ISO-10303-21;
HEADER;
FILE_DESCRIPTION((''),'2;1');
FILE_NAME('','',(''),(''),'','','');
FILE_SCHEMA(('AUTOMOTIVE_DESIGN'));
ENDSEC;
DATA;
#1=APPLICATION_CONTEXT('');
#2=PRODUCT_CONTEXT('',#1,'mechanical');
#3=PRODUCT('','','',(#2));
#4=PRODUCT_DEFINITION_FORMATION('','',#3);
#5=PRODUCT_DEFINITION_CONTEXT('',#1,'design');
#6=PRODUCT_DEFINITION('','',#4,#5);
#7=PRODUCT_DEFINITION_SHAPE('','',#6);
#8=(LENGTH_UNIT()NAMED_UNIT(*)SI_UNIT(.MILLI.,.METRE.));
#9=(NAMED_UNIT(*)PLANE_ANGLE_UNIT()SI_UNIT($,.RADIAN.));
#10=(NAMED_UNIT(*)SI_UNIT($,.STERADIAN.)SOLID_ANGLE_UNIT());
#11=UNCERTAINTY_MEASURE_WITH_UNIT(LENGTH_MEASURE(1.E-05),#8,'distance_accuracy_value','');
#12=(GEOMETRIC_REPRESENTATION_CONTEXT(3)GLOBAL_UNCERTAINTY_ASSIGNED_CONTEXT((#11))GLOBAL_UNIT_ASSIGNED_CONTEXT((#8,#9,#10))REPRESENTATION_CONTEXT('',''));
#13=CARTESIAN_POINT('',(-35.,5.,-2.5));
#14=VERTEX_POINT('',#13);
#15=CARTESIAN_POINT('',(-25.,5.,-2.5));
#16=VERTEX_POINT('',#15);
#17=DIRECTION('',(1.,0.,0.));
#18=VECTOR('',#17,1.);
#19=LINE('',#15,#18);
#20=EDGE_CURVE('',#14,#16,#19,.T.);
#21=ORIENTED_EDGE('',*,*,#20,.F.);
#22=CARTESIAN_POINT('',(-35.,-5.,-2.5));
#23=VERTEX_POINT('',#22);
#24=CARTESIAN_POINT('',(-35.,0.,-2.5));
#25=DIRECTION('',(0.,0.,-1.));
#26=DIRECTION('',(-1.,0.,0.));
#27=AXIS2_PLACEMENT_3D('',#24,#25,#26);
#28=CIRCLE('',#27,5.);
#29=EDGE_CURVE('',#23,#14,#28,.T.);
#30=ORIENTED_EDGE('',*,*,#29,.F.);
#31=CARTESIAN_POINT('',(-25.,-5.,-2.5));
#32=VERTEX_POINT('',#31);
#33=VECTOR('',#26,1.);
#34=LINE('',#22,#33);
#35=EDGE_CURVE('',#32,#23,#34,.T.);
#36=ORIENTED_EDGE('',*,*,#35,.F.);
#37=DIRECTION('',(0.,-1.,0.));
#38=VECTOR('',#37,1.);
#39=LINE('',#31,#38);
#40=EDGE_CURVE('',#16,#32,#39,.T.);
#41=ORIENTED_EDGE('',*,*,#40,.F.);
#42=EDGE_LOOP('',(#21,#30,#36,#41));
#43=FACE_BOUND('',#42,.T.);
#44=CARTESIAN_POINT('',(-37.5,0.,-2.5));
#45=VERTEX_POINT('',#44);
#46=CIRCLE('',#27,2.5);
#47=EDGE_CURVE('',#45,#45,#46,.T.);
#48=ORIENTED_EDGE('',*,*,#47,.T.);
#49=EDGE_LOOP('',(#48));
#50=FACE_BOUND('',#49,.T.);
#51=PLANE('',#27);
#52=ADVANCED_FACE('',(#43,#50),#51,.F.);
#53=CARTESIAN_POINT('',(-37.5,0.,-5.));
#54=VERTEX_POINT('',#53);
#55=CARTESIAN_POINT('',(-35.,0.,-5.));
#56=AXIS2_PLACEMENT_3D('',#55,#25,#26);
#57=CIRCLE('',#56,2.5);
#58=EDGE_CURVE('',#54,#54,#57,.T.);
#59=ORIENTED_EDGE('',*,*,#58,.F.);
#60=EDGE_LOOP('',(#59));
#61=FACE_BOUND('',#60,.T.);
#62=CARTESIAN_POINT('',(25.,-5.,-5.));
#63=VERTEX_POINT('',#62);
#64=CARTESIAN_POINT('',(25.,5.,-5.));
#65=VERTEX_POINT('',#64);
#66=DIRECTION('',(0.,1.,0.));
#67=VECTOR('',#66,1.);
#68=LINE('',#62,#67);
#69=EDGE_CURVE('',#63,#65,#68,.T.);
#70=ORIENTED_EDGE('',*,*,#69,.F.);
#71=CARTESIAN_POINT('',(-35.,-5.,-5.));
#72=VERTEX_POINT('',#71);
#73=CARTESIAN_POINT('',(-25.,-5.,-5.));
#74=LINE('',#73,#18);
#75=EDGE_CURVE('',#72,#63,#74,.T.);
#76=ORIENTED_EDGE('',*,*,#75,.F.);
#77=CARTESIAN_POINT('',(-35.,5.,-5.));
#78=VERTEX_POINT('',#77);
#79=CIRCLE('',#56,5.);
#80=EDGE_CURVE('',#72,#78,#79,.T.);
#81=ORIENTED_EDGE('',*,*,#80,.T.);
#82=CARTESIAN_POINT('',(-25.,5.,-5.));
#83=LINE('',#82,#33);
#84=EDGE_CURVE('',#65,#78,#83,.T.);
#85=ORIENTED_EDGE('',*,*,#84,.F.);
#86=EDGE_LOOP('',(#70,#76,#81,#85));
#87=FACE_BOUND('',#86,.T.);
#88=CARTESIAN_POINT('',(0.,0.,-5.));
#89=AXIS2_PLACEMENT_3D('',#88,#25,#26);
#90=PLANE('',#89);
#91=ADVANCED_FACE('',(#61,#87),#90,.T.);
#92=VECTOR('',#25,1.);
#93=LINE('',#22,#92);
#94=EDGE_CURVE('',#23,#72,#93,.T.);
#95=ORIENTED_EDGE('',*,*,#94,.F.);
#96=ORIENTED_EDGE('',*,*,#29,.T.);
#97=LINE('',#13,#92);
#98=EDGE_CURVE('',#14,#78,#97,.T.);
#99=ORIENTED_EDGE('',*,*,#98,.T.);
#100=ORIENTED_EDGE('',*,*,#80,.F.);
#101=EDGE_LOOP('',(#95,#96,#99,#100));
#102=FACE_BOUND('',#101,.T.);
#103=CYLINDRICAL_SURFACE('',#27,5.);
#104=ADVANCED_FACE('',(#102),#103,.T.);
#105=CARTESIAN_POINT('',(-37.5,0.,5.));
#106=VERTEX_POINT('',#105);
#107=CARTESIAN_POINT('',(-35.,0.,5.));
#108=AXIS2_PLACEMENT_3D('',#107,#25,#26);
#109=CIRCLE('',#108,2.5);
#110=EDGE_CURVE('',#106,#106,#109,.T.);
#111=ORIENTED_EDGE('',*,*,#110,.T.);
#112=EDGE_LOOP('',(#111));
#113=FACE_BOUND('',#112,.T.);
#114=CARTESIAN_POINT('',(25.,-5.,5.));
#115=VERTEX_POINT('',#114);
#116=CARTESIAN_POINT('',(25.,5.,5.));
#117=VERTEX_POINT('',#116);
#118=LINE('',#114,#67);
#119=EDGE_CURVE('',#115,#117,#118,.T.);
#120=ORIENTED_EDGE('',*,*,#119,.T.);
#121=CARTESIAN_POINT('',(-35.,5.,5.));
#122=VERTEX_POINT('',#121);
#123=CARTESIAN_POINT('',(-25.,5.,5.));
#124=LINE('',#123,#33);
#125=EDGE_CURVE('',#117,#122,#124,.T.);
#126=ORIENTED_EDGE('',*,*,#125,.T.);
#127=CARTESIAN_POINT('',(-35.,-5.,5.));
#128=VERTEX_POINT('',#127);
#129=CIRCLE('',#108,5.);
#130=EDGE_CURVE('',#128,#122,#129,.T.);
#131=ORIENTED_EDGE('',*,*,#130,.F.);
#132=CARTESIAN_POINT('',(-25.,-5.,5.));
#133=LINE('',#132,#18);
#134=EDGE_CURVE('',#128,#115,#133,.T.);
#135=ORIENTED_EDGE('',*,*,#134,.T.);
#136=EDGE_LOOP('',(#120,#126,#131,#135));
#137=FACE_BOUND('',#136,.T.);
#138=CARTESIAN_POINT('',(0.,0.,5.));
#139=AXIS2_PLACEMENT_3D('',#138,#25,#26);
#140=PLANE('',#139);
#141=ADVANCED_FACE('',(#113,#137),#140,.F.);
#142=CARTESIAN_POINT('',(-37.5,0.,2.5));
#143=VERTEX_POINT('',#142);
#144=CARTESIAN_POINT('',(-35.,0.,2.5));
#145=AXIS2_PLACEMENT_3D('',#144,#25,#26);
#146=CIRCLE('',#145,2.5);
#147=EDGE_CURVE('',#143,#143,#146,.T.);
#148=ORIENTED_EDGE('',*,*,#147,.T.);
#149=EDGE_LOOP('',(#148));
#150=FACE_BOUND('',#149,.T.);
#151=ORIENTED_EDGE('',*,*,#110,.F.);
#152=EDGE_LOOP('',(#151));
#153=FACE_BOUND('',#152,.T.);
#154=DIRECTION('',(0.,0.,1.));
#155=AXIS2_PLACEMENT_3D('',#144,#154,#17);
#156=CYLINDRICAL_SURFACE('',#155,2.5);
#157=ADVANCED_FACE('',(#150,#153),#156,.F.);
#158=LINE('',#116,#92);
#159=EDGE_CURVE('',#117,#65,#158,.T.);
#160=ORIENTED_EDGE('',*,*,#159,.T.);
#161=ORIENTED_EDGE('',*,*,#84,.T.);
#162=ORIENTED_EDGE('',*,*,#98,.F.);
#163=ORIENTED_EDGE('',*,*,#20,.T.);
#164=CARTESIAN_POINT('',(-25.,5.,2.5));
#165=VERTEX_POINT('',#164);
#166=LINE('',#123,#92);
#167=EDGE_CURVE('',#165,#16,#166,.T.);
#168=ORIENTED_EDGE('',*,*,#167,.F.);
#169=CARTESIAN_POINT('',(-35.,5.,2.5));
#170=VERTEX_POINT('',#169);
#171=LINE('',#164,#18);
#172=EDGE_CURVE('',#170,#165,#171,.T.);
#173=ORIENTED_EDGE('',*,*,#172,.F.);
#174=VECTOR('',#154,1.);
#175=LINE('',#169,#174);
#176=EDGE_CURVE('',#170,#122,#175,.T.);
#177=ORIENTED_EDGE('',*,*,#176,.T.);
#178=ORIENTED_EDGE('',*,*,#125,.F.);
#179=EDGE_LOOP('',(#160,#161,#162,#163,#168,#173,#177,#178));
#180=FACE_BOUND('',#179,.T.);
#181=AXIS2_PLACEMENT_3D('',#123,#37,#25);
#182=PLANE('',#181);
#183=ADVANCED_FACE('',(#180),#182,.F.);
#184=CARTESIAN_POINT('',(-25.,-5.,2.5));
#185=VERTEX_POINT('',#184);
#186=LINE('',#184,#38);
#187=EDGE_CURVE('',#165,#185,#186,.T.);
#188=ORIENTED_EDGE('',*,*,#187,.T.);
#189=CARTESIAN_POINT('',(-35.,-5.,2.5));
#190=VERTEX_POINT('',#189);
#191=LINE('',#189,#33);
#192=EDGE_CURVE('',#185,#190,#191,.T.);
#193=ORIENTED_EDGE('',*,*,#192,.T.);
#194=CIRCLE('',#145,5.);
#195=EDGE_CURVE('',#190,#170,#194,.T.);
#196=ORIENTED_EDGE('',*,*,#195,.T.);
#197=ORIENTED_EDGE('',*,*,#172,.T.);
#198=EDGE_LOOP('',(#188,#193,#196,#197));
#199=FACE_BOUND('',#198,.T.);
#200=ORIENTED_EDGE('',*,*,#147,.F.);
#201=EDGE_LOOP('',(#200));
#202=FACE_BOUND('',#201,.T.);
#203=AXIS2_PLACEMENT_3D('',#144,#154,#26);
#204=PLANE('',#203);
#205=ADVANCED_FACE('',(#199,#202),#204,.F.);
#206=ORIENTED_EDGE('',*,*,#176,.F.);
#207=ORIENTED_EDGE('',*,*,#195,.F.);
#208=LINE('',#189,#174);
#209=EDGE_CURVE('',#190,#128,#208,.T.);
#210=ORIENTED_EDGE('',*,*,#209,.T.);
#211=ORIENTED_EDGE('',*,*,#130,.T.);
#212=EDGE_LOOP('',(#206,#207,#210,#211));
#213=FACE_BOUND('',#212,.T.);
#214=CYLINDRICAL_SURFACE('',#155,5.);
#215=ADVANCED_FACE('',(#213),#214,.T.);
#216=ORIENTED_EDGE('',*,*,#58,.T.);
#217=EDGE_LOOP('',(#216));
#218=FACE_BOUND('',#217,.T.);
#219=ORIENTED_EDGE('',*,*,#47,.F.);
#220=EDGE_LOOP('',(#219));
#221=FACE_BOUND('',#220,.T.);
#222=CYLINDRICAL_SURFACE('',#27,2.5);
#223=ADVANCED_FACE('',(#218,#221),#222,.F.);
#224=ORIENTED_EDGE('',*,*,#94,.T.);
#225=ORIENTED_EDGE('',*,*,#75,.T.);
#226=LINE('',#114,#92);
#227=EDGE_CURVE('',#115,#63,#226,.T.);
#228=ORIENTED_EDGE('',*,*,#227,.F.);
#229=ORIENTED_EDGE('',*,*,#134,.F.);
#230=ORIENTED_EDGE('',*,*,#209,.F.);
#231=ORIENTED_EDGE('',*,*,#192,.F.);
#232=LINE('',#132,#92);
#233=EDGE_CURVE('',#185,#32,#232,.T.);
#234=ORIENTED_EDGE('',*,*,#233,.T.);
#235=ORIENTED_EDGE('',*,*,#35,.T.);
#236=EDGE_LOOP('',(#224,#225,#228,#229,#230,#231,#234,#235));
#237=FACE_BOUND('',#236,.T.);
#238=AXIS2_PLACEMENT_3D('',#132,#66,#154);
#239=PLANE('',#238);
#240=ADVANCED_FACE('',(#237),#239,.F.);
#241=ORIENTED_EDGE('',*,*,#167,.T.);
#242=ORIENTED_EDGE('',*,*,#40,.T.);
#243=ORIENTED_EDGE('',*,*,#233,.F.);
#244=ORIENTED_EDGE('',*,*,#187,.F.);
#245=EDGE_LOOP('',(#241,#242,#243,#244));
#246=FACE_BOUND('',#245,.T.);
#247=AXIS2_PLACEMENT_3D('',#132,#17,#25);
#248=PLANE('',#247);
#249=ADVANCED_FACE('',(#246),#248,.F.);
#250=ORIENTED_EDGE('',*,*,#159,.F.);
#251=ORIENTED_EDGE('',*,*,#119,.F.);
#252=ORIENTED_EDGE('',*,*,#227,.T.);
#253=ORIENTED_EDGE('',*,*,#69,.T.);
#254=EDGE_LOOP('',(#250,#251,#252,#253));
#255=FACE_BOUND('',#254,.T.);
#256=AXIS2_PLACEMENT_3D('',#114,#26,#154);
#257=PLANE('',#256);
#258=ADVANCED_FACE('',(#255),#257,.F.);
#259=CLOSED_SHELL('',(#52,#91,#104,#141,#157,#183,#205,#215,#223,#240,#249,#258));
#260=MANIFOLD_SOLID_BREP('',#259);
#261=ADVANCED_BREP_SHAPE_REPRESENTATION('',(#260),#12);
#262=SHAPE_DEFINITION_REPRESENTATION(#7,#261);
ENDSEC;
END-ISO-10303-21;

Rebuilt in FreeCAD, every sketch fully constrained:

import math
import FreeCAD as App
import Part
import Sketcher

V = App.Vector
Q = App.Units.Quantity


def add_polygon(sketch, points):
    """Adds a closed chain of lines whose ends are joined by coincident constraints."""
    first, n = sketch.GeometryCount, len(points)
    for a, b in zip(points, points[1:] + points[:1]):
        sketch.addGeometry(Part.LineSegment(App.Vector(*a, 0), App.Vector(*b, 0)), False)
    for i in range(n):
        sketch.addConstraint(Sketcher.Constraint("Coincident", first + i, 2, first + (i + 1) % n, 1))

doc = App.newDocument("Part")
body = doc.addObject("PartDesign::Body", "Body")

# Sketch on XY plane
sketch1 = body.newObject("Sketcher::SketchObject", "Sketch")
sketch1.AttachmentSupport = (doc.getObject("XY_Plane"), [""])
sketch1.MapMode = "FlatFace"
add_polygon(sketch1, [(-25, 5), (-25, -5), (25, -5), (25, 5)])  # lines 0-3
sketch1.addConstraint(Sketcher.Constraint("Vertical", 0))
sketch1.addConstraint(Sketcher.Constraint("Horizontal", 1))
sketch1.addConstraint(Sketcher.Constraint("Vertical", 2))
sketch1.addConstraint(Sketcher.Constraint("Horizontal", 3))
sketch1.addConstraint(Sketcher.Constraint("Symmetric", 0, 2, 2, 2, -1, 1))
sketch1.addConstraint(Sketcher.Constraint("DistanceX", 1, 1, 1, 2, Q("50 mm")))
sketch1.addConstraint(Sketcher.Constraint("DistanceY", 0, 2, 0, 1, Q("10 mm")))
pad1 = body.newObject("PartDesign::Pad", "Pad")
pad1.Profile = sketch1
pad1.Length = 10
pad1.Midplane = True

# Sketch on XY plane
sketch2 = body.newObject("Sketcher::SketchObject", "Sketch001")
sketch2.AttachmentSupport = (doc.getObject("XY_Plane"), [""])
sketch2.MapMode = "FlatFace"
sketch2.AttachmentOffset = App.Placement(V(0, 0, -5), App.Rotation())
sketch2.addGeometry(Part.LineSegment(V(-35, 5, 0), V(-25, 5, 0)), False)
sketch2.addGeometry(Part.LineSegment(V(-25, 5, 0), V(-25, -5, 0)), False)
sketch2.addGeometry(Part.LineSegment(V(-25, -5, 0), V(-35, -5, 0)), False)
sketch2.addGeometry(Part.ArcOfCircle(Part.Circle(V(-35, 0, 0), V(0, 0, 1), 5), math.radians(90), math.radians(270)), False)
sketch2.addGeometry(Part.Circle(V(-35, 0, 0), V(0, 0, 1), 2.5), False)
sketch2.addConstraint(Sketcher.Constraint("Coincident", 0, 2, 1, 1))
sketch2.addConstraint(Sketcher.Constraint("Coincident", 1, 2, 2, 1))
sketch2.addConstraint(Sketcher.Constraint("Tangent", 2, 2, 3, 2))
sketch2.addConstraint(Sketcher.Constraint("Tangent", 3, 1, 0, 1))
sketch2.addConstraint(Sketcher.Constraint("Horizontal", 0))
sketch2.addConstraint(Sketcher.Constraint("Vertical", 1))
sketch2.addConstraint(Sketcher.Constraint("Horizontal", 2))
sketch2.addConstraint(Sketcher.Constraint("Coincident", 4, 3, 3, 3))
sketch2.addConstraint(Sketcher.Constraint("PointOnObject", 3, 3, -1))
sketch2.addConstraint(Sketcher.Constraint("Equal", 2, 1))
sketch2.addConstraint(Sketcher.Constraint("Diameter", 4, Q("5 mm")))
sketch2.addConstraint(Sketcher.Constraint("Radius", 3, Q("5 mm")))
sketch2.addConstraint(Sketcher.Constraint("DistanceX", 3, 3, -1, 1, Q("35 mm")))
pad2 = body.newObject("PartDesign::Pad", "Pad001")
pad2.Profile = sketch2
pad2.Length = 2.5
doc.recompute()

mirrored = body.newObject("PartDesign::Mirrored", "Mirrored")
mirrored.Originals = [pad2]
mirrored.MirrorPlane = (doc.getObject("XY_Plane"), [""])
body.Tip = mirrored

doc.recompute()
